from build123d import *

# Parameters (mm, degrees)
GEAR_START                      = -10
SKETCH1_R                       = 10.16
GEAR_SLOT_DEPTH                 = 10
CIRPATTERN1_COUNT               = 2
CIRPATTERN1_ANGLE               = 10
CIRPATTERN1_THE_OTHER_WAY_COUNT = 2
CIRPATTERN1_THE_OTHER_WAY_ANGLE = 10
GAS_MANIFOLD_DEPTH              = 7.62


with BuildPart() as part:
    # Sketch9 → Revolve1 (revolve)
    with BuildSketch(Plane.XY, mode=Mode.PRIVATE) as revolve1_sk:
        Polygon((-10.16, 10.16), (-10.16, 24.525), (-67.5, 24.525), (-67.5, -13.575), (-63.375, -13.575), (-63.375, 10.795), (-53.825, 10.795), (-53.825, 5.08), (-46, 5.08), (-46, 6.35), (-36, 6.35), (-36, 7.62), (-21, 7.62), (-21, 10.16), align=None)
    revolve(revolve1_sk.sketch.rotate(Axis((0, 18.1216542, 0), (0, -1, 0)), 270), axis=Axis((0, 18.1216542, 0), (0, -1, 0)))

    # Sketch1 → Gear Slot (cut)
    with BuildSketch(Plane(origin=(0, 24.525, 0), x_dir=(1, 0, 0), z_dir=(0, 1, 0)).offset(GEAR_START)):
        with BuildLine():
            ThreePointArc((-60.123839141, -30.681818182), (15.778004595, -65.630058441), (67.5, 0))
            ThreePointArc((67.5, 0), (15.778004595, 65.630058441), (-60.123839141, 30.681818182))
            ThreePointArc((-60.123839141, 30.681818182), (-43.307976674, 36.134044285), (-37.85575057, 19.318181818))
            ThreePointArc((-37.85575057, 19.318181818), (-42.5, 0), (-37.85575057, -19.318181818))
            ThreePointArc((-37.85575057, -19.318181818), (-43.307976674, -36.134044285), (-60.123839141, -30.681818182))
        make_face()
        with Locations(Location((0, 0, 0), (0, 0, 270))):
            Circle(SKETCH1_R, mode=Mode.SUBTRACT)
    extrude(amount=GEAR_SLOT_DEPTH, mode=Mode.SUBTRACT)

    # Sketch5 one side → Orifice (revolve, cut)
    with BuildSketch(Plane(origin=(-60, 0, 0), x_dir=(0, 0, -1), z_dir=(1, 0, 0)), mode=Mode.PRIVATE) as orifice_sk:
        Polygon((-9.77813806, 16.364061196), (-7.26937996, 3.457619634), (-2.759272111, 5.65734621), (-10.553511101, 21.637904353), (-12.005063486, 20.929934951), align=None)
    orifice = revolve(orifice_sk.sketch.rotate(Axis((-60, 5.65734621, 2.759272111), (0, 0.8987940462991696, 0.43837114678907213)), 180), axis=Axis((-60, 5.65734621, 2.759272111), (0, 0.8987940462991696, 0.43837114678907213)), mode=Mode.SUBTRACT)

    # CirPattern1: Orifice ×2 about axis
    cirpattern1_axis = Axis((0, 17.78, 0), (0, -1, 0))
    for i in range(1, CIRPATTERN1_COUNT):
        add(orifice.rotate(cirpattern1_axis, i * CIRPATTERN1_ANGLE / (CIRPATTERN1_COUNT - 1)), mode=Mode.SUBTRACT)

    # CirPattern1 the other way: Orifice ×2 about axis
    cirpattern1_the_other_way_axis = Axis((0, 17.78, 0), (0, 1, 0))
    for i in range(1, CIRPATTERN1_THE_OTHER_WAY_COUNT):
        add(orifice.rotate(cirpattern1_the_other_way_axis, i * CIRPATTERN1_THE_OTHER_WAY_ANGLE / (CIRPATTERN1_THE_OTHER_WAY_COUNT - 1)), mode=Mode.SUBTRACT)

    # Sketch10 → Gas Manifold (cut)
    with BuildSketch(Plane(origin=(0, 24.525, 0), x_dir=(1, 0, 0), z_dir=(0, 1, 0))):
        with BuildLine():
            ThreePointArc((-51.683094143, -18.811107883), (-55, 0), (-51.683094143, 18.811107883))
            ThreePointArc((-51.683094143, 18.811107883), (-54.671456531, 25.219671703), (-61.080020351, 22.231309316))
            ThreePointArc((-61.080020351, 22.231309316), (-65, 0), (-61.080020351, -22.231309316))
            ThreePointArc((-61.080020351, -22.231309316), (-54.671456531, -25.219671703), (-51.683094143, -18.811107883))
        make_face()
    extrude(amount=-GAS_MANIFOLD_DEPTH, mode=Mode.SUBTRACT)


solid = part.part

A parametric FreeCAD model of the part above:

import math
import FreeCAD as App
import Part
import Sketcher

V = App.Vector
Q = App.Units.Quantity


def add_polygon(sketch, points):
    """Adds a closed chain of lines whose ends are joined by coincident constraints."""
    first, n = sketch.GeometryCount, len(points)
    for a, b in zip(points, points[1:] + points[:1]):
        sketch.addGeometry(Part.LineSegment(App.Vector(*a, 0), App.Vector(*b, 0)), False)
    for i in range(n):
        sketch.addConstraint(Sketcher.Constraint("Coincident", first + i, 2, first + (i + 1) % n, 1))

doc = App.newDocument("Part")
params = doc.addObject("Spreadsheet::Sheet", "Params")
for row, (alias, value) in enumerate([
    ("sketch1_height", "1.5 in"),
    ("sketch1_height2", "0.1 in"),
    ("sketch1_height3", "0.05 in"),
    ("sketch1_height4", "0.225 in"),
    ("revolution_angle", "360 deg"),
    ("sketch2_diameter", "0.8 in"),
    ("pocket1_length", "10 mm"),
    ("sketch3_length", "0.7 in"),
    ("sketch3_length2", "0.2 in"),
    ("groove_angle", "360 deg"),
    ("pocket2_length", "0.3 in"),
], start=1):
    params.set(f"A{row}", alias)
    params.set(f"B{row}", "=" + value)
    params.setAlias(f"B{row}", alias)

body = doc.addObject("PartDesign::Body", "Body")

sketch1 = body.newObject("Sketcher::SketchObject", "Sketch")
sketch1.AttachmentSupport = (doc.getObject("XY_Plane"), [""])
sketch1.MapMode = "FlatFace"
add_polygon(sketch1, [(-10.2, 10.2), (-10.2, 24.5), (-67.5, 24.5), (-67.5, -13.6), (-63.4, -13.6), (-63.4, 10.8), (-53.8, 10.8), (-53.8, 5.1), (-46, 5.1), (-46, 6.3), (-36, 6.3), (-36, 7.6), (-21, 7.6), (-21, 10.2)])
sketch1.addConstraint([
    Sketcher.Constraint("Vertical", 0),
    Sketcher.Constraint("Horizontal", 1),
    Sketcher.Constraint("Vertical", 2),
    Sketcher.Constraint("Horizontal", 3),
    Sketcher.Constraint("Vertical", 4),
    Sketcher.Constraint("Horizontal", 5),
    Sketcher.Constraint("Vertical", 6),
    Sketcher.Constraint("Horizontal", 7),
    Sketcher.Constraint("Vertical", 8),
    Sketcher.Constraint("Horizontal", 9),
    Sketcher.Constraint("Vertical", 10),
    Sketcher.Constraint("Horizontal", 11),
    Sketcher.Constraint("Vertical", 12),
    Sketcher.Constraint("Horizontal", 13),
    Sketcher.Constraint("Equal", 8, 10),
    Sketcher.Constraint("DistanceY", 2, 2, 2, 1, Q("1.5 in")),
    Sketcher.Constraint("DistanceY", 12, 1, 12, 2, Q("0.1 in")),
    Sketcher.Constraint("DistanceY", 8, 1, 8, 2, Q("0.05 in")),
    Sketcher.Constraint("DistanceX", 0, 2, -1, 1, Q("0.4 in")),
    Sketcher.Constraint("DistanceY", -1, 1, 6, 2, Q("0.2 in")),
    Sketcher.Constraint("DistanceY", 6, 2, 6, 1, Q("0.225 in")),
    Sketcher.Constraint("DistanceX", 1, 2, 1, 1, Q("57.34 mm")),
    Sketcher.Constraint("DistanceX", 3, 1, 3, 2, Q("4.125 mm")),
    Sketcher.Constraint("DistanceX", 5, 1, 5, 2, Q("9.55 mm")),
    Sketcher.Constraint("DistanceX", 7, 1, 7, 2, Q("7.825 mm")),
    Sketcher.Constraint("DistanceX", 9, 1, 9, 2, Q("10 mm")),
    Sketcher.Constraint("DistanceX", 11, 1, 11, 2, Q("15 mm")),
    Sketcher.Constraint("DistanceY", 0, 1, 0, 2, Q("14.365 mm")),
])
sketch1.setExpression("Constraints[29]", "Params.sketch1_height")
sketch1.setExpression("Constraints[30]", "Params.sketch1_height2")
sketch1.setExpression("Constraints[31]", "Params.sketch1_height3")
sketch1.setExpression("Constraints[34]", "Params.sketch1_height4")
revolution = body.newObject("PartDesign::Revolution", "Revolution")
revolution.Profile = sketch1
revolution.ReferenceAxis = (sketch1, ["V_Axis"])
revolution.setExpression("Angle", "Params.revolution_angle")

sketch2 = body.newObject("Sketcher::SketchObject", "Sketch001")
sketch2.AttachmentSupport = (doc.getObject("XZ_Plane"), [""])
sketch2.MapMode = "FlatFace"
sketch2.AttachmentOffset = App.Placement(V(0, 0, -14.525), App.Rotation())
sketch2.addGeometry([
    Part.ArcOfCircle(Part.Circle(V(0, 0, 0), V(0, 0, 1), 68), math.radians(0), math.radians(153)),
    Part.ArcOfCircle(Part.Circle(V(0, 0, 0), V(0, 0, 1), 68), math.radians(-153), math.radians(0)),
    Part.ArcOfCircle(Part.Circle(V(-49, -25, 0), V(0, 0, 1), 12), math.radians(-153), math.radians(27)),
    Part.ArcOfCircle(Part.Circle(V(0, 0, 0), V(0, 0, 1), 42), math.radians(153), math.radians(207)),
    Part.ArcOfCircle(Part.Circle(V(-49, 25, 0), V(0, 0, 1), 12), math.radians(-27), math.radians(153)),
    Part.Circle(V(0, 0, 0), V(0, 0, 1), 10),
], False)
sketch2.addConstraint([
    Sketcher.Constraint("Tangent", 0, 1, 1, 2),
    Sketcher.Constraint("Tangent", 1, 1, 2, 1),
    Sketcher.Constraint("Tangent", 2, 2, 3, 2),
    Sketcher.Constraint("Tangent", 3, 1, 4, 1),
    Sketcher.Constraint("Tangent", 4, 2, 0, 2),
    Sketcher.Constraint("Coincident", 0, 3, -1, 1),
    Sketcher.Constraint("Coincident", 3, 3, -1, 1),
    Sketcher.Constraint("Coincident", 5, 3, -1, 1),
    Sketcher.Constraint("Equal", 0, 1),
    Sketcher.Constraint("PointOnObject", 0, 1, -1),
    Sketcher.Constraint("Vertical", 2, 3, 4, 3),
    Sketcher.Constraint("Diameter", 5, Q("0.8 in")),
    Sketcher.Constraint("Radius", 0, Q("67.5 mm")),
    Sketcher.Constraint("Radius", 2, Q("12.5 mm")),
    Sketcher.Constraint("DistanceY", 2, 3, -1, 1, Q("25 mm")),
])
sketch2.setExpression("Constraints[11]", "Params.sketch2_diameter")
pocket1 = body.newObject("PartDesign::Pocket", "Pocket")
pocket1.Profile = sketch2
pocket1.setExpression("Length", "Params.pocket1_length")

sketch3 = body.newObject("Sketcher::SketchObject", "Sketch002")
sketch3.AttachmentSupport = (doc.getObject("YZ_Plane"), [""])
sketch3.MapMode = "FlatFace"
sketch3.AttachmentOffset = App.Placement(V(0, 0, -60), App.Rotation())
add_polygon(sketch3, [(16.4, 9.8), (3.5, 7.3), (5.7, 2.8), (21.6, 10.6), (20.9, 12)])
sketch3.addGeometry(Part.LineSegment(V(5.7, 2.8, 0), V(21.6, 10.6, 0)), True)
sketch3.addConstraint([
    Sketcher.Constraint("Coincident", 5, 1, 1, 2),
    Sketcher.Constraint("Coincident", 5, 2, 2, 2),
    Sketcher.Constraint("Perpendicular", 1, 2),
    Sketcher.Constraint("Perpendicular", 2, 3),
    Sketcher.Constraint("Perpendicular", 3, 4),
    Sketcher.Constraint("Angle", 0, Q("-169 deg")),
    Sketcher.Constraint("Angle", 1, Q("-64 deg")),
    Sketcher.Constraint("Distance", 2, Q("0.7 in")),
    Sketcher.Constraint("Distance", 4, Q("0.2 in")),
    Sketcher.Constraint("Distance", 3, Q("1.615 mm")),
    Sketcher.Constraint("DistanceX", -1, 1, 0, 2, Q("3.45762 mm")),
    Sketcher.Constraint("DistanceY", -1, 1, 0, 2, Q("7.26938 mm")),
])
sketch3.setExpression("Constraints[12]", "Params.sketch3_length")
sketch3.setExpression("Constraints[13]", "Params.sketch3_length2")
groove = body.newObject("PartDesign::Groove", "Groove")
groove.Profile = sketch3
groove.ReferenceAxis = (sketch3, ["Axis0"])
groove.setExpression("Angle", "Params.groove_angle")
doc.recompute()

polarpattern = body.newObject("PartDesign::PolarPattern", "PolarPattern")
polarpattern.Originals = [groove]
polarpattern.Axis = (doc.getObject("Y_Axis"), [""])
polarpattern.Angle = 10
polarpattern.Occurrences = 2
polarpattern.Reversed = True
body.Tip = polarpattern
doc.recompute()

polarpattern2 = body.newObject("PartDesign::PolarPattern", "PolarPattern001")
polarpattern2.Originals = [groove]
polarpattern2.Axis = (doc.getObject("Y_Axis"), [""])
polarpattern2.Angle = 10
polarpattern2.Occurrences = 2
body.Tip = polarpattern2

sketch4 = body.newObject("Sketcher::SketchObject", "Sketch003")
sketch4.AttachmentSupport = (doc.getObject("XZ_Plane"), [""])
sketch4.MapMode = "FlatFace"
sketch4.AttachmentOffset = App.Placement(V(0, 0, -24.525), App.Rotation())
sketch4.addGeometry([
    Part.ArcOfCircle(Part.Circle(V(0, 0, 0), V(0, 0, 1), 55), math.radians(160), math.radians(200)),
    Part.ArcOfCircle(Part.Circle(V(-56, -21, 0), V(0, 0, 1), 5), math.radians(-160), math.radians(20)),
    Part.ArcOfCircle(Part.Circle(V(0, 0, 0), V(0, 0, 1), 65), math.radians(160), math.radians(200)),
    Part.ArcOfCircle(Part.Circle(V(-56, 21, 0), V(0, 0, 1), 5), math.radians(-20), math.radians(160)),
], False)
sketch4.addConstraint([
    Sketcher.Constraint("Tangent", 0, 2, 1, 2),
    Sketcher.Constraint("Tangent", 1, 1, 2, 2),
    Sketcher.Constraint("Tangent", 2, 1, 3, 2),
    Sketcher.Constraint("Tangent", 3, 1, 0, 1),
    Sketcher.Constraint("Coincident", 0, 3, -1, 1),
    Sketcher.Constraint("Coincident", 2, 3, -1, 1),
    Sketcher.Constraint("Vertical", 1, 3, 3, 3),
    Sketcher.Constraint("Radius", 0, Q("55 mm")),
    Sketcher.Constraint("Radius", 1, Q("5 mm")),
    Sketcher.Constraint("DistanceY", 1, 1, 1, 3, Q("1.710101 mm")),
])
pocket2 = body.newObject("PartDesign::Pocket", "Pocket001")
pocket2.Profile = sketch4
pocket2.setExpression("Length", "Params.pocket2_length")
pocket2.Reversed = True

doc.recompute()
